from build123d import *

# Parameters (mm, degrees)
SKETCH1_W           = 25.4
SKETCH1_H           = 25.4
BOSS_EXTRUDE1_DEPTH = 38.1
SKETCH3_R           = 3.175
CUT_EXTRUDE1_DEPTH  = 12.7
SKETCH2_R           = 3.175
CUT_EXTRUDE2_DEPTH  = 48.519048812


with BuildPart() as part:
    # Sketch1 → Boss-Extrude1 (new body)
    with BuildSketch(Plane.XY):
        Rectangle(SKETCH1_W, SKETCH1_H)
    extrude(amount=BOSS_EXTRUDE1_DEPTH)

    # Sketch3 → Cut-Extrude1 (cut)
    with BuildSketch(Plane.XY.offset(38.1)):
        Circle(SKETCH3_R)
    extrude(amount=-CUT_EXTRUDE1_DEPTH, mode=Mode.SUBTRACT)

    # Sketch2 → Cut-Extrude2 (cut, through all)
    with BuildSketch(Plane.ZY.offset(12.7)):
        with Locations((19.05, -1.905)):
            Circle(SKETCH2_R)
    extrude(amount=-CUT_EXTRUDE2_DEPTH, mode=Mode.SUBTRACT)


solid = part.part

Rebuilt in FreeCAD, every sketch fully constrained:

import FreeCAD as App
import Part
import Sketcher
Q = App.Units.Quantity

doc = App.newDocument("Part")
body = doc.addObject("PartDesign::Body", "Body")

# Sketch on XY plane
sketch1 = body.newObject("Sketcher::SketchObject", "Sketch")
sketch1.AttachmentSupport = (doc.getObject("XY_Plane"), [""])
sketch1.MapMode = "FlatFace"
sketch1.addGeometry([
    Part.LineSegment(App.Vector(-13, 13, 0), App.Vector(-13, -13, 0)),
    Part.LineSegment(App.Vector(-13, -13, 0), App.Vector(13, -13, 0)),
    Part.LineSegment(App.Vector(13, -13, 0), App.Vector(13, 13, 0)),
    Part.LineSegment(App.Vector(13, 13, 0), App.Vector(-13, 13, 0)),
], False)
sketch1.addConstraint([
    Sketcher.Constraint("Coincident", 0, 2, 1, 1),
    Sketcher.Constraint("Coincident", 1, 2, 2, 1),
    Sketcher.Constraint("Coincident", 2, 2, 3, 1),
    Sketcher.Constraint("Coincident", 3, 2, 0, 1),
    Sketcher.Constraint("Vertical", 0),
    Sketcher.Constraint("Horizontal", 1),
    Sketcher.Constraint("Vertical", 2),
    Sketcher.Constraint("Horizontal", 3),
    Sketcher.Constraint("Symmetric", 0, 2, 2, 2, -1, 1),
    Sketcher.Constraint("Equal", 3, 0),
    Sketcher.Constraint("DistanceX", 1, 1, 1, 2, Q("1 in")),
])
pad1 = body.newObject("PartDesign::Pad", "Pad")
pad1.Profile = sketch1
pad1.Length = Q("1.5 in")

# Sketch on XY plane
sketch2 = body.newObject("Sketcher::SketchObject", "Sketch001")
sketch2.AttachmentSupport = (doc.getObject("XY_Plane"), [""])
sketch2.MapMode = "FlatFace"
sketch2.AttachmentOffset = App.Placement(App.Vector(0, 0, 1.5 * 25.4), App.Rotation())
sketch2.addGeometry(Part.Circle(App.Vector(0, 0, 0), App.Vector(0, 0, 1), 3.2), False)
sketch2.addConstraint([
    Sketcher.Constraint("Coincident", 0, 3, -1, 1),
    Sketcher.Constraint("Diameter", 0, Q("0.25 in")),
])
pocket1 = body.newObject("PartDesign::Pocket", "Pocket")
pocket1.Profile = sketch2
pocket1.Length = Q("0.5 in")

# Sketch on YZ plane
sketch3 = body.newObject("Sketcher::SketchObject", "Sketch002")
sketch3.AttachmentSupport = (doc.getObject("YZ_Plane"), [""])
sketch3.MapMode = "FlatFace"
sketch3.AttachmentOffset = App.Placement(App.Vector(0, 0, -0.5 * 25.4), App.Rotation())
sketch3.addGeometry(Part.Circle(App.Vector(-1.9, 19.1, 0), App.Vector(0, 0, 1), 3.2), False)
sketch3.addConstraint([
    Sketcher.Constraint("Diameter", 0, Q("0.25 in")),
    Sketcher.Constraint("DistanceY", -1, 1, 0, 3, Q("0.75 in")),
    Sketcher.Constraint("DistanceX", 0, 3, -1, 1, Q("0.075 in")),
])
pocket2 = body.newObject("PartDesign::Pocket", "Pocket001")
pocket2.Profile = sketch3
pocket2.Type = "ThroughAll"
pocket2.Reversed = True

doc.recompute()
